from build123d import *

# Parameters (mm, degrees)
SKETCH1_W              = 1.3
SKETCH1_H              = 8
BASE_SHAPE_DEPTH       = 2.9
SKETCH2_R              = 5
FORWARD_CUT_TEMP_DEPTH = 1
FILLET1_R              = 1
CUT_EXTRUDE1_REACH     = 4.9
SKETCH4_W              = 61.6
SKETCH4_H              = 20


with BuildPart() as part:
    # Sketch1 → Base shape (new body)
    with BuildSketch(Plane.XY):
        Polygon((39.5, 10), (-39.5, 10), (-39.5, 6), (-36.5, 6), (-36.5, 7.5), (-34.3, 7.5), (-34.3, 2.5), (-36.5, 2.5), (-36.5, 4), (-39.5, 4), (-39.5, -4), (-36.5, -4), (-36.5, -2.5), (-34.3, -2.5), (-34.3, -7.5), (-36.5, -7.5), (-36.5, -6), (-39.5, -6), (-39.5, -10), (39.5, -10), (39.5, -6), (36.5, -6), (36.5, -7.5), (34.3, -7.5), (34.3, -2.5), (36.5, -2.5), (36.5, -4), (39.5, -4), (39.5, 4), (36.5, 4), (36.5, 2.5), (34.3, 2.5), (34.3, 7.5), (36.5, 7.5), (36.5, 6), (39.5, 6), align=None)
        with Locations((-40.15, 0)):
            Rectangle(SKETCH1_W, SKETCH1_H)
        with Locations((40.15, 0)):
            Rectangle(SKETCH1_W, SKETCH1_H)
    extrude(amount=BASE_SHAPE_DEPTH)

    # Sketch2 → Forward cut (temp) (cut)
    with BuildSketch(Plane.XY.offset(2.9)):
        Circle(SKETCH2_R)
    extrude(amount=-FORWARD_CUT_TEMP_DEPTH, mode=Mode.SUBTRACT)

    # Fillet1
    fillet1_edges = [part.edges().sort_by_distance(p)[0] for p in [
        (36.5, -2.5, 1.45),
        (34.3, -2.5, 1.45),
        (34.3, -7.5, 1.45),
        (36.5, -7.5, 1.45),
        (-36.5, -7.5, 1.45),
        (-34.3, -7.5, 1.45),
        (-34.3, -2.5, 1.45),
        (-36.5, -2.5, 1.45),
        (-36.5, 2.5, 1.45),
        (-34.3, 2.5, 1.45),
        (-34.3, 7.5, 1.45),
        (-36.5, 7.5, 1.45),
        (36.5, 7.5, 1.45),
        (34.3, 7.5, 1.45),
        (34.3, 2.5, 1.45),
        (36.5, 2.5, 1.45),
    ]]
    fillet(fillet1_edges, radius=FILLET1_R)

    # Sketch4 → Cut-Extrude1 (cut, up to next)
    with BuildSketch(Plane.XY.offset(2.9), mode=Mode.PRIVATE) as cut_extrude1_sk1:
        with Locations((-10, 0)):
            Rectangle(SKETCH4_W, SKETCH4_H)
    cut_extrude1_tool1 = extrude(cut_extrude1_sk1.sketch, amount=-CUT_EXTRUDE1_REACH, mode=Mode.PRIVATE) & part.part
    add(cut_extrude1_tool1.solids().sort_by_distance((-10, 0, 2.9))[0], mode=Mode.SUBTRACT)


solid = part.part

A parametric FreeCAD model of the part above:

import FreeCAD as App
import Part
import Sketcher
Q = App.Units.Quantity


def edges_at(feature, points):
    """Names of the edges that pass closest to the given points."""
    edges = feature.Shape.Edges
    near = lambda p: min(range(len(edges)), key=lambda i: edges[i].distToShape(Part.Vertex(*p))[0])
    return sorted({f"Edge{near(p) + 1}" for p in points})


def add_polygon(sketch, points):
    """Adds a closed chain of lines whose ends are joined by coincident constraints."""
    first, n = sketch.GeometryCount, len(points)
    for a, b in zip(points, points[1:] + points[:1]):
        sketch.addGeometry(Part.LineSegment(App.Vector(*a, 0), App.Vector(*b, 0)), False)
    for i in range(n):
        sketch.addConstraint(Sketcher.Constraint("Coincident", first + i, 2, first + (i + 1) % n, 1))

doc = App.newDocument("Part")
body = doc.addObject("PartDesign::Body", "Body")

# Sketch on XY plane
sketch1 = doc.addObject("Sketcher::SketchObject", "Sketch")
body.addObject(sketch1)
sketch1.AttachmentSupport = (doc.XY_Plane, [""])
sketch1.MapMode = "FlatFace"
add_polygon(sketch1, [(39.5, 10), (-39.5, 10), (-39.5, 6), (-36.5, 6), (-36.5, 7.5), (-34.3, 7.5), (-34.3, 2.5), (-36.5, 2.5), (-36.5, 4), (-40.8, 4), (-40.8, -4), (-36.5, -4), (-36.5, -2.5), (-34.3, -2.5), (-34.3, -7.5), (-36.5, -7.5), (-36.5, -6), (-39.5, -6), (-39.5, -10), (39.5, -10), (39.5, -6), (36.5, -6), (36.5, -7.5), (34.3, -7.5), (34.3, -2.5), (36.5, -2.5), (36.5, -4), (40.8, -4), (40.8, 4), (36.5, 4), (36.5, 2.5), (34.3, 2.5), (34.3, 7.5), (36.5, 7.5), (36.5, 6), (39.5, 6)])  # lines 0-35
sketch1.addConstraint([
    Sketcher.Constraint("Horizontal", 0),
    Sketcher.Constraint("Vertical", 1),
    Sketcher.Constraint("Horizontal", 2),
    Sketcher.Constraint("Vertical", 3),
    Sketcher.Constraint("Horizontal", 4),
    Sketcher.Constraint("Vertical", 5),
    Sketcher.Constraint("Horizontal", 6),
    Sketcher.Constraint("Vertical", 7),
    Sketcher.Constraint("Horizontal", 8),
    Sketcher.Constraint("Vertical", 9),
    Sketcher.Constraint("Horizontal", 10),
    Sketcher.Constraint("Vertical", 11),
    Sketcher.Constraint("Horizontal", 12),
    Sketcher.Constraint("Vertical", 13),
    Sketcher.Constraint("Horizontal", 14),
    Sketcher.Constraint("Vertical", 15),
    Sketcher.Constraint("Horizontal", 16),
    Sketcher.Constraint("Vertical", 17),
    Sketcher.Constraint("Horizontal", 18),
    Sketcher.Constraint("Vertical", 19),
    Sketcher.Constraint("Horizontal", 20),
    Sketcher.Constraint("Vertical", 21),
    Sketcher.Constraint("Horizontal", 22),
    Sketcher.Constraint("Vertical", 23),
    Sketcher.Constraint("Horizontal", 24),
    Sketcher.Constraint("Vertical", 25),
    Sketcher.Constraint("Horizontal", 26),
    Sketcher.Constraint("Vertical", 27),
    Sketcher.Constraint("Horizontal", 28),
    Sketcher.Constraint("Vertical", 29),
    Sketcher.Constraint("Horizontal", 30),
    Sketcher.Constraint("Vertical", 31),
    Sketcher.Constraint("Horizontal", 32),
    Sketcher.Constraint("Vertical", 33),
    Sketcher.Constraint("Horizontal", 34),
    Sketcher.Constraint("Vertical", 35),
    Sketcher.Constraint("Symmetric", 0, 2, 18, 2, -1, 1),
    Sketcher.Constraint("Symmetric", 2, 2, 20, 2, -1, 1),
    Sketcher.Constraint("Symmetric", 4, 2, 22, 2, -1, 1),
    Sketcher.Constraint("Symmetric", 6, 2, 24, 2, -1, 1),
    Sketcher.Constraint("Symmetric", 8, 2, 26, 2, -1, 1),
    Sketcher.Constraint("Symmetric", 10, 2, 28, 2, -1, 1),
    Sketcher.Constraint("Symmetric", 12, 2, 30, 2, -1, 1),
    Sketcher.Constraint("Symmetric", 14, 2, 32, 2, -1, 1),
    Sketcher.Constraint("Symmetric", 16, 2, 34, 2, -1, 1),
    Sketcher.Constraint("Symmetric", 16, 2, 19, 2, -2),
    Sketcher.Constraint("Symmetric", 14, 2, 21, 2, -2),
    Sketcher.Constraint("Symmetric", 12, 2, 23, 2, -2),
    Sketcher.Constraint("Symmetric", 10, 2, 25, 2, -2),
    Sketcher.Constraint("Vertical", 3, 2, 6, 2),
    Sketcher.Constraint("Equal", 3, 7),
    Sketcher.Constraint("DistanceX", 0, 2, 0, 1, Q("79 mm")),
    Sketcher.Constraint("DistanceX", 2, 1, 2, 2, Q("3 mm")),
    Sketcher.Constraint("DistanceY", 1, 2, 1, 1, Q("4 mm")),
    Sketcher.Constraint("DistanceY", 5, 2, 5, 1, Q("5 mm")),
    Sketcher.Constraint("DistanceY", 9, 2, 9, 1, Q("8 mm")),
    Sketcher.Constraint("DistanceX", 4, 1, 4, 2, Q("2.2 mm")),
    Sketcher.Constraint("DistanceX", 8, 2, 8, 1, Q("4.3 mm")),
    Sketcher.Constraint("DistanceY", 3, 1, 3, 2, Q("1.5 mm")),
])
pad1 = doc.addObject("PartDesign::Pad", "Pad")
body.addObject(pad1)
pad1.Profile = sketch1
pad1.Length = 2.9

# Sketch on XY plane
sketch2 = doc.addObject("Sketcher::SketchObject", "Sketch001")
body.addObject(sketch2)
sketch2.AttachmentSupport = (doc.XY_Plane, [""])
sketch2.MapMode = "FlatFace"
sketch2.AttachmentOffset = App.Placement(App.Vector(0, 0, 2.9), App.Rotation())
sketch2.addGeometry(Part.Circle(App.Vector(0, 0, 0), App.Vector(0, 0, 1), 5), False)
sketch2.addConstraint([
    Sketcher.Constraint("Coincident", 0, 3, -1, 1),
    Sketcher.Constraint("Diameter", 0, Q("10 mm")),
])
pocket1 = doc.addObject("PartDesign::Pocket", "Pocket")
body.addObject(pocket1)
pocket1.Profile = sketch2
pocket1.Length = 1
doc.recompute()

fillet = doc.addObject("PartDesign::Fillet", "Fillet")
body.addObject(fillet)
fillet.Base = (pocket1, edges_at(pocket1, [
    (36.5, -2.5, 1.45),
    (34.3, -2.5, 1.45),
    (34.3, -7.5, 1.45),
    (36.5, -7.5, 1.45),
    (-36.5, -7.5, 1.45),
    (-34.3, -7.5, 1.45),
    (-34.3, -2.5, 1.45),
    (-36.5, -2.5, 1.45),
    (-36.5, 2.5, 1.45),
    (-34.3, 2.5, 1.45),
    (-34.3, 7.5, 1.45),
    (-36.5, 7.5, 1.45),
    (36.5, 7.5, 1.45),
    (34.3, 7.5, 1.45),
    (34.3, 2.5, 1.45),
    (36.5, 2.5, 1.45),
]))
fillet.Radius = 1

# Sketch on XY plane
sketch3 = doc.addObject("Sketcher::SketchObject", "Sketch002")
body.addObject(sketch3)
sketch3.AttachmentSupport = (doc.XY_Plane, [""])
sketch3.MapMode = "FlatFace"
sketch3.AttachmentOffset = App.Placement(App.Vector(0, 0, 2.9), App.Rotation())
add_polygon(sketch3, [(-41, 10), (-41, -10), (21, -10), (21, 10)])  # lines 0-3
sketch3.addConstraint([
    Sketcher.Constraint("Vertical", 0),
    Sketcher.Constraint("Horizontal", 1),
    Sketcher.Constraint("Vertical", 2),
    Sketcher.Constraint("Horizontal", 3),
    Sketcher.Constraint("DistanceY", 0, 2, 0, 1, Q("20 mm")),
    Sketcher.Constraint("DistanceX", 1, 1, 1, 2, Q("61.6 mm")),
    Sketcher.Constraint("DistanceY", 0, 2, -1, 1, Q("10 mm")),
    Sketcher.Constraint("DistanceX", 0, 2, -1, 1, Q("40.8 mm")),
])
pocket2 = doc.addObject("PartDesign::Pocket", "Pocket001")
body.addObject(pocket2)
pocket2.Profile = sketch3
pocket2.Type = "UpToFirst"

doc.recompute()
